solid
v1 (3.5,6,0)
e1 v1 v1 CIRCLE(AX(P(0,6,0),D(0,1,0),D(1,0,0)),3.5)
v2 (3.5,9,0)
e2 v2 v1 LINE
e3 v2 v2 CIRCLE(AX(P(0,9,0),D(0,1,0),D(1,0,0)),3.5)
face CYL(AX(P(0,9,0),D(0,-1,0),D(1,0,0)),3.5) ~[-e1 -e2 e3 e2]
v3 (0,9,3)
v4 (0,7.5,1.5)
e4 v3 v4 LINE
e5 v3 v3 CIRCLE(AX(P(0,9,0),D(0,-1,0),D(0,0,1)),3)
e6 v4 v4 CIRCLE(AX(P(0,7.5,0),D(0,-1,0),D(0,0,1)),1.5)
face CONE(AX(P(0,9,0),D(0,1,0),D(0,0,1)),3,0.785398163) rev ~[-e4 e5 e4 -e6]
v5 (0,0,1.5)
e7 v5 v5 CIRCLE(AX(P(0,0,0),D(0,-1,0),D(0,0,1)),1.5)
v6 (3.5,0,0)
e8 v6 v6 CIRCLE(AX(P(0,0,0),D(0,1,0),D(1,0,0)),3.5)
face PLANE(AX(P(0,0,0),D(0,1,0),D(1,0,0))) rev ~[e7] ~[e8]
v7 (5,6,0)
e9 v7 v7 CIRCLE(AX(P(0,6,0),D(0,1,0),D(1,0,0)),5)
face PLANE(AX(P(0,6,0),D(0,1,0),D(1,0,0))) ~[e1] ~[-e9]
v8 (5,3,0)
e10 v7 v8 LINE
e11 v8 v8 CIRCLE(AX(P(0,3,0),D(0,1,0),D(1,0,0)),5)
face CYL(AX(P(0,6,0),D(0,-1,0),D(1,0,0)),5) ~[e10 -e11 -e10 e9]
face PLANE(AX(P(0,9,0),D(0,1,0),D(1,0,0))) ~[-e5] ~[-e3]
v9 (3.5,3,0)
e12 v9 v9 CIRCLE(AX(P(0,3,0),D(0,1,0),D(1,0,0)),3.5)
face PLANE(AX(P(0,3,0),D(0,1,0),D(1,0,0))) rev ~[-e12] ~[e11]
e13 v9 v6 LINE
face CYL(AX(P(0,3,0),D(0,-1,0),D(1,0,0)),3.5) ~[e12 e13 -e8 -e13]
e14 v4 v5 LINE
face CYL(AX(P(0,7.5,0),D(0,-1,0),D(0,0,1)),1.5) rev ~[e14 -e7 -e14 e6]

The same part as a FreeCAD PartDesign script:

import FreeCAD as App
import Part
import Sketcher

V = App.Vector


def add_polygon(sketch, points):
    """Adds a closed chain of lines whose ends are joined by coincident constraints."""
    first, n = sketch.GeometryCount, len(points)
    for a, b in zip(points, points[1:] + points[:1]):
        sketch.addGeometry(Part.LineSegment(App.Vector(*a, 0), App.Vector(*b, 0)), False)
    for i in range(n):
        sketch.addConstraint(Sketcher.Constraint("Coincident", first + i, 2, first + (i + 1) % n, 1))

doc = App.newDocument("Part")
params = doc.addObject("Spreadsheet::Sheet", "Params")
for row, (alias, value) in enumerate([
    ("sketch1_height", "3 mm"),
    ("sketch1_width", "3.5 mm"),
    ("sketch1_width2", "1.5 mm"),
    ("revolution_angle", "360 deg"),
    ("sketch2_diameter", "3 mm"),
    ("hole_diameter", "3 mm"),
    ("hole_depth", "9 mm"),
    ("hole_csink_diameter", "6 mm"),
], start=1):
    params.set(f"A{row}", alias)
    params.set(f"B{row}", "=" + value)
    params.setAlias(f"B{row}", alias)

body = doc.addObject("PartDesign::Body", "Body")

# Sketch on XY plane
sketch1 = body.newObject("Sketcher::SketchObject", "Sketch")
sketch1.AttachmentSupport = (doc.getObject("XY_Plane"), [""])
sketch1.MapMode = "FlatFace"
add_polygon(sketch1, [(3.5, 9), (0, 9), (0, 0), (3.5, 0), (3.5, 3), (5, 3), (5, 6), (3.5, 6)])  # lines 0-7
sketch1.addConstraint(Sketcher.Constraint("Horizontal", 0))
sketch1.addConstraint(Sketcher.Constraint("Vertical", 1))
sketch1.addConstraint(Sketcher.Constraint("Horizontal", 2))
sketch1.addConstraint(Sketcher.Constraint("Vertical", 3))
sketch1.addConstraint(Sketcher.Constraint("Horizontal", 4))
sketch1.addConstraint(Sketcher.Constraint("Vertical", 5))
sketch1.addConstraint(Sketcher.Constraint("Horizontal", 6))
sketch1.addConstraint(Sketcher.Constraint("Vertical", 7))
sketch1.addConstraint(Sketcher.Constraint("Coincident", 1, 2, -1, 1))
sketch1.addConstraint(Sketcher.Constraint("Vertical", 3, 2, 6, 2))
sketch1.addConstraint(Sketcher.Constraint("Equal", 3, 5))
sketch1.addConstraint(Sketcher.Constraint("Equal", 5, 7))
sketch1.addConstraint(Sketcher.Constraint("DistanceY", 3, 1, 3, 2, 3.0))
sketch1.addConstraint(Sketcher.Constraint("DistanceX", 0, 2, 0, 1, 3.5))
sketch1.addConstraint(Sketcher.Constraint("DistanceX", 4, 1, 4, 2, 1.5))
sketch1.setExpression("Constraints[20]", "Params.sketch1_height")
sketch1.setExpression("Constraints[21]", "Params.sketch1_width")
sketch1.setExpression("Constraints[22]", "Params.sketch1_width2")
revolution = body.newObject("PartDesign::Revolution", "Revolution")
revolution.Profile = sketch1
revolution.ReferenceAxis = (sketch1, ["V_Axis"])
revolution.setExpression("Angle", "Params.revolution_angle")

# Sketch on XZ plane
sketch2 = body.newObject("Sketcher::SketchObject", "Sketch001")
sketch2.AttachmentSupport = (doc.getObject("XZ_Plane"), [""])
sketch2.MapMode = "FlatFace"
sketch2.AttachmentOffset = App.Placement(V(0, 0, -9), App.Rotation())
sketch2.addGeometry(Part.Circle(V(0, 0, 0), V(0, 0, 1), 1.5), False)
sketch2.addConstraint(Sketcher.Constraint("Coincident", 0, 3, -1, 1))
sketch2.addConstraint(Sketcher.Constraint("Diameter", 0, 3.0))
sketch2.setExpression("Constraints[1]", "Params.sketch2_diameter")
doc.recompute()
hole = body.newObject("PartDesign::Hole", "Hole")
hole.Profile = sketch2
hole.ThreadType = "None"
hole.setExpression("Diameter", "Params.hole_diameter")
hole.DepthType = "Dimension"
hole.setExpression("Depth", "Params.hole_depth")
hole.DrillPoint = "Flat"
hole.HoleCutType = "Countersink"
hole.setExpression("HoleCutDiameter", "Params.hole_csink_diameter")
hole.HoleCutCountersinkAngle = 90
hole.Reversed = True

doc.recompute()
